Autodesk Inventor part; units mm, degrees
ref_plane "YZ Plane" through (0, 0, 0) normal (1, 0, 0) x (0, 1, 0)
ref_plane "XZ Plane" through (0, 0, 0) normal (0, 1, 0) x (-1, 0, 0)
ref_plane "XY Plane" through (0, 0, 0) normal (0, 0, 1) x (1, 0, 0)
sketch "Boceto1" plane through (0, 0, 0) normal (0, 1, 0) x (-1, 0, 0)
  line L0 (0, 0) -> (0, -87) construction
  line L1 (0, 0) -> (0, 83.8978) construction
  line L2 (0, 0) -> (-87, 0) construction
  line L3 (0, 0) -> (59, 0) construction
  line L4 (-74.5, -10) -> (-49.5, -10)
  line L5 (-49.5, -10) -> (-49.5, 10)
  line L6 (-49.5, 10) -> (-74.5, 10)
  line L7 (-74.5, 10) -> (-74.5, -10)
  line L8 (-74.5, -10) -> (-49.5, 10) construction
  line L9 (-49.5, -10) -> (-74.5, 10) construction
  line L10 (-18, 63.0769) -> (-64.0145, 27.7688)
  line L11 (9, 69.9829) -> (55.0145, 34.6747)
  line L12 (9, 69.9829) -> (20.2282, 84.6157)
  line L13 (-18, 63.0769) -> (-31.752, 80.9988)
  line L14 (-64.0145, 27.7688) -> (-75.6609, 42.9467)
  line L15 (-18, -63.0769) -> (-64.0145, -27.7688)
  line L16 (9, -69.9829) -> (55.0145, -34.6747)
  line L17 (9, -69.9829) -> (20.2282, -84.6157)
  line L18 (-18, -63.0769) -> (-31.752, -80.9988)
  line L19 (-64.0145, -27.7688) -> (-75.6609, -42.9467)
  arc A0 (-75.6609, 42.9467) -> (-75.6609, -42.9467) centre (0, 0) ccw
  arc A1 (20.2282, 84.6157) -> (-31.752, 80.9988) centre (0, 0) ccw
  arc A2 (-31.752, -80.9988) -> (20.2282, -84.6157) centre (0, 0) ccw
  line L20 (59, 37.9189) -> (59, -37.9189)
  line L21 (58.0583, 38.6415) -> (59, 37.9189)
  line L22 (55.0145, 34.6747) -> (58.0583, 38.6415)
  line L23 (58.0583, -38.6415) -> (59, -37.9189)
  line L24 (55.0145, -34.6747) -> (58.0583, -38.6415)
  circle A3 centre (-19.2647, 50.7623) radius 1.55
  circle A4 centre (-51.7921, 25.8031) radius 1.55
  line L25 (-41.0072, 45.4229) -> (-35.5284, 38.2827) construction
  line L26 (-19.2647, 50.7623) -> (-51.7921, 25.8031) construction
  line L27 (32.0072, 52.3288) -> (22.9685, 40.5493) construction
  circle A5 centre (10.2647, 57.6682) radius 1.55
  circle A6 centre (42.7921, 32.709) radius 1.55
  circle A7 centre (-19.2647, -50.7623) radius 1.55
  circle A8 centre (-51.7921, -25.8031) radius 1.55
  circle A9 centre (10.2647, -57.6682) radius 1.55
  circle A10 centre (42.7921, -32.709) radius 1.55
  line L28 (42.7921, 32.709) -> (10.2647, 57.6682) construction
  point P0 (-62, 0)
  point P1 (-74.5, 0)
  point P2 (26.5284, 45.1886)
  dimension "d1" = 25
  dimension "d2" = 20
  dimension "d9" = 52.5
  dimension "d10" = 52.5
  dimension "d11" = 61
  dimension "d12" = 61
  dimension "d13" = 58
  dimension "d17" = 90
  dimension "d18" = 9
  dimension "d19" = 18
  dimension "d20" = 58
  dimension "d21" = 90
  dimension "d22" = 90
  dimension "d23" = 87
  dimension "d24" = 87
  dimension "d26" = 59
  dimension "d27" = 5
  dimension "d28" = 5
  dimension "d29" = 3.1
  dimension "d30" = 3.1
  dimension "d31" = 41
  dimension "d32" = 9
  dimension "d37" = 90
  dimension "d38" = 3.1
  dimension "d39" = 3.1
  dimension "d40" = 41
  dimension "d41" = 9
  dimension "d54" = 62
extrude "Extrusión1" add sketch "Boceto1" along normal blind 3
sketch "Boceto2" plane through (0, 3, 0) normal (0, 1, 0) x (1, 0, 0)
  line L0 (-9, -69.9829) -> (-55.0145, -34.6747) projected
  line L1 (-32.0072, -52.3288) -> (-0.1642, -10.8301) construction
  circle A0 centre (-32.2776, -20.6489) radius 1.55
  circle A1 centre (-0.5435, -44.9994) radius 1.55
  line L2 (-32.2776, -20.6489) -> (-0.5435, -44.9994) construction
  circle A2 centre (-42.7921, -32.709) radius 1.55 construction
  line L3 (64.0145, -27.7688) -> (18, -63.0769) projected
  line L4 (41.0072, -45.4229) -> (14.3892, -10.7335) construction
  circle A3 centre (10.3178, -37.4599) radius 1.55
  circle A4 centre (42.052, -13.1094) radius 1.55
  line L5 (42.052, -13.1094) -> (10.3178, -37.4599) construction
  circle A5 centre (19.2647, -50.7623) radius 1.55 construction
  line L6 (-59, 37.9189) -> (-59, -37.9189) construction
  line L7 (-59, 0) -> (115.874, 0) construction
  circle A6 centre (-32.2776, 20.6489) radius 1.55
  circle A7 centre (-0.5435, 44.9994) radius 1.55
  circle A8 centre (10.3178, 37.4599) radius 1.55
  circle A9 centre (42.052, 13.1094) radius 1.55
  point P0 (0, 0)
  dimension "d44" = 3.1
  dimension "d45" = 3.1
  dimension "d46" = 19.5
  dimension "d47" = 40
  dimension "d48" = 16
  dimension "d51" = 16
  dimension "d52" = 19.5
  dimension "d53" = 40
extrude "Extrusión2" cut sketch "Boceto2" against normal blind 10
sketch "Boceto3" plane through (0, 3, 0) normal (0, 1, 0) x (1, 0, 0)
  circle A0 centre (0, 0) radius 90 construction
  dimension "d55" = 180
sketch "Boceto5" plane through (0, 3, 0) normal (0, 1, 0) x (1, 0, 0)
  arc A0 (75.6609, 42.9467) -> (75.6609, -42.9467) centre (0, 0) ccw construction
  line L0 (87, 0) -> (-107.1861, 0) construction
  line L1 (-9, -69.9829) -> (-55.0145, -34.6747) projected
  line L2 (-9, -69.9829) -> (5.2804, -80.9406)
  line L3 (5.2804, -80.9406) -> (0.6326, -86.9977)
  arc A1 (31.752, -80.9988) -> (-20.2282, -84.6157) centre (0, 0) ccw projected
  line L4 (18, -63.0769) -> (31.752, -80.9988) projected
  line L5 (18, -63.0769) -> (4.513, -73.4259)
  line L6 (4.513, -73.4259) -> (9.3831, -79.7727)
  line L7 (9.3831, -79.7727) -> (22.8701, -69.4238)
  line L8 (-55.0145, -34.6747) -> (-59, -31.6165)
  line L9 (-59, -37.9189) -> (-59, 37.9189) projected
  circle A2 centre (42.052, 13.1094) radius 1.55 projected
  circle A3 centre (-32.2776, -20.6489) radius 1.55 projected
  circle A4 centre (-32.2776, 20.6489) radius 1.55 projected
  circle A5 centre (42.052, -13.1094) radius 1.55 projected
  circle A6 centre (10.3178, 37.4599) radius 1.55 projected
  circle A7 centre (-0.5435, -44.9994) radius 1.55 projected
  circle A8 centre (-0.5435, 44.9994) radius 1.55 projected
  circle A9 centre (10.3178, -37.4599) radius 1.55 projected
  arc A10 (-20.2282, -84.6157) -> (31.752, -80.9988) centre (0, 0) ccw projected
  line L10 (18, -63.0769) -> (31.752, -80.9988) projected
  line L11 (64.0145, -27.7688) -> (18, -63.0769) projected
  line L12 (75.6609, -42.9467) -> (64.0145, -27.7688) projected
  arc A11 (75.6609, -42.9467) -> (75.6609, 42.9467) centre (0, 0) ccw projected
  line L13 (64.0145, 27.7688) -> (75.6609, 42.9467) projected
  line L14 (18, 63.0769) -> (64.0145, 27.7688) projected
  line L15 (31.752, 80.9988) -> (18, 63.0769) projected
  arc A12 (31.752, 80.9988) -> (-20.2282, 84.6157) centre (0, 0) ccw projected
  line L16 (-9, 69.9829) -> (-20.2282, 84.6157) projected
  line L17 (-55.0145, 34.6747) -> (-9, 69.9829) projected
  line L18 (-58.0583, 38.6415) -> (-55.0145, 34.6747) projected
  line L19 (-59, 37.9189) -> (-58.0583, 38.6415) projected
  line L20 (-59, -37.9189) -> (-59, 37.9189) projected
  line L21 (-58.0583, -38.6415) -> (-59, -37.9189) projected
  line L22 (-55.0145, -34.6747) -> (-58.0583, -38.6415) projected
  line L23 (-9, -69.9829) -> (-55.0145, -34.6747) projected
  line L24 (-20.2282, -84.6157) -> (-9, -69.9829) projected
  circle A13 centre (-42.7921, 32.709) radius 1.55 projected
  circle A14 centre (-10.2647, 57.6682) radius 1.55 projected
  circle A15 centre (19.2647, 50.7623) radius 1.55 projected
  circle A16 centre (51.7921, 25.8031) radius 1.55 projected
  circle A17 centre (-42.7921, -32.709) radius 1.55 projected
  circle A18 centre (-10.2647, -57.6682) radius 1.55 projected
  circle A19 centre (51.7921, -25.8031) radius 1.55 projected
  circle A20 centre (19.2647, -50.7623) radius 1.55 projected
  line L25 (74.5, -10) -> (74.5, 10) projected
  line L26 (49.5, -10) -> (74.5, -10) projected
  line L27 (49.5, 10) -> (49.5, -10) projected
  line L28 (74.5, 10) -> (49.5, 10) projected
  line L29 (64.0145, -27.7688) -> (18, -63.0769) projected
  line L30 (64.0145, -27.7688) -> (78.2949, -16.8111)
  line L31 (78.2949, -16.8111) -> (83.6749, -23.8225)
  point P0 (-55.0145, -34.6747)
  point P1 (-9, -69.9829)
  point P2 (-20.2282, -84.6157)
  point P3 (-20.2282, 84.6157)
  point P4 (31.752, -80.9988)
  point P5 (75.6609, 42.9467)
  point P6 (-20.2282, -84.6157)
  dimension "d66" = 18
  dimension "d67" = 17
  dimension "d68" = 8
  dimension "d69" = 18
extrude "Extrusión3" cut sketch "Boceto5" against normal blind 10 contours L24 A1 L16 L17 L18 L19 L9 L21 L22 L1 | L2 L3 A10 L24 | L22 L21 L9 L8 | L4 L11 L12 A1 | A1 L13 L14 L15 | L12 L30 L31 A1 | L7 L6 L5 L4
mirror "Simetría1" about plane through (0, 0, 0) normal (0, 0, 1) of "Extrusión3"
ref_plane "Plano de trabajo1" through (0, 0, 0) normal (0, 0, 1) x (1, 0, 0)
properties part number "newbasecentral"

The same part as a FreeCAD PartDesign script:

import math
import FreeCAD as App
import Part
import Sketcher
Q = App.Units.Quantity

doc = App.newDocument("Part")
body = doc.addObject("PartDesign::Body", "Body")

# Sketch on XZ plane
sketch1 = body.newObject("Sketcher::SketchObject", "Sketch")
sketch1.AttachmentSupport = (doc.getObject("XZ_Plane"), [""])
sketch1.MapMode = "FlatFace"
sketch1.addGeometry([
    Part.LineSegment(App.Vector(31.752, 80.9988, 0), App.Vector(18, 63.0769, 0)),  # 0
    Part.LineSegment(App.Vector(18, 63.0769, 0), App.Vector(64.0145, 27.7688, 0)),  # 1
    Part.LineSegment(App.Vector(64.0145, 27.7688, 0), App.Vector(75.6609, 42.9467, 0)),  # 2
    Part.ArcOfCircle(Part.Circle(App.Vector(0, 0, 0), App.Vector(0, 0, 1), 86.999947), math.radians(-29.580145), math.radians(29.580145)),  # 3
    Part.LineSegment(App.Vector(75.6609, -42.9467, 0), App.Vector(64.0145, -27.7688, 0)),  # 4
    Part.LineSegment(App.Vector(64.0145, -27.7688, 0), App.Vector(18, -63.0769, 0)),  # 5
    Part.LineSegment(App.Vector(18, -63.0769, 0), App.Vector(31.752, -80.9988, 0)),  # 6
    Part.ArcOfCircle(Part.Circle(App.Vector(0, 0, 0), App.Vector(0, 0, 1), 86.999981), math.radians(-103.444779), math.radians(-68.594532)),  # 7
    Part.LineSegment(App.Vector(-20.2282, -84.6157, 0), App.Vector(-9, -69.9829, 0)),  # 8
    Part.LineSegment(App.Vector(-9, -69.9829, 0), App.Vector(-55.0145, -34.6747, 0)),  # 9
    Part.LineSegment(App.Vector(-55.0145, -34.6747, 0), App.Vector(-58.0583, -38.6415, 0)),  # 10
    Part.LineSegment(App.Vector(-58.0583, -38.6415, 0), App.Vector(-59, -37.9189, 0)),  # 11
    Part.LineSegment(App.Vector(-59, -37.9189, 0), App.Vector(-59, 37.9189, 0)),  # 12
    Part.LineSegment(App.Vector(-59, 37.9189, 0), App.Vector(-58.0583, 38.6415, 0)),  # 13
    Part.LineSegment(App.Vector(-58.0583, 38.6415, 0), App.Vector(-55.0145, 34.6747, 0)),  # 14
    Part.LineSegment(App.Vector(-55.0145, 34.6747, 0), App.Vector(-9, 69.9829, 0)),  # 15
    Part.LineSegment(App.Vector(-9, 69.9829, 0), App.Vector(-20.2282, 84.6157, 0)),  # 16
    Part.ArcOfCircle(Part.Circle(App.Vector(0, 0, 0), App.Vector(0, 0, 1), 86.999947), math.radians(68.594532), math.radians(103.444779)),  # 17
    Part.Circle(App.Vector(19.2647, -50.7623, 0), App.Vector(0, 0, 1), 1.55),  # 18
    Part.Circle(App.Vector(51.7921, -25.8031, 0), App.Vector(0, 0, 1), 1.55),  # 19
    Part.LineSegment(App.Vector(49.5, -10, 0), App.Vector(74.5, -10, 0)),  # 20
    Part.LineSegment(App.Vector(74.5, -10, 0), App.Vector(74.5, 10, 0)),  # 21
    Part.LineSegment(App.Vector(74.5, 10, 0), App.Vector(49.5, 10, 0)),  # 22
    Part.LineSegment(App.Vector(49.5, 10, 0), App.Vector(49.5, -10, 0)),  # 23
    Part.Circle(App.Vector(-10.2647, -57.6682, 0), App.Vector(0, 0, 1), 1.55),  # 24
    Part.Circle(App.Vector(-42.7921, -32.709, 0), App.Vector(0, 0, 1), 1.55),  # 25
    Part.Circle(App.Vector(51.7921, 25.8031, 0), App.Vector(0, 0, 1), 1.55),  # 26
    Part.Circle(App.Vector(19.2647, 50.7623, 0), App.Vector(0, 0, 1), 1.55),  # 27
    Part.Circle(App.Vector(-42.7921, 32.709, 0), App.Vector(0, 0, 1), 1.55),  # 28
    Part.Circle(App.Vector(-10.2647, 57.6682, 0), App.Vector(0, 0, 1), 1.55),  # 29
], False)
sketch1.addConstraint([
    Sketcher.Constraint("Coincident", 0, 2, 1, 1),
    Sketcher.Constraint("Coincident", 1, 2, 2, 1),
    Sketcher.Constraint("Coincident", 2, 2, 3, 2),
    Sketcher.Constraint("Coincident", 3, 1, 4, 1),
    Sketcher.Constraint("Coincident", 4, 2, 5, 1),
    Sketcher.Constraint("Coincident", 5, 2, 6, 1),
    Sketcher.Constraint("Coincident", 6, 2, 7, 2),
    Sketcher.Constraint("Coincident", 7, 1, 8, 1),
    Sketcher.Constraint("Coincident", 8, 2, 9, 1),
    Sketcher.Constraint("Coincident", 9, 2, 10, 1),
    Sketcher.Constraint("Coincident", 10, 2, 11, 1),
    Sketcher.Constraint("Coincident", 11, 2, 12, 1),
    Sketcher.Constraint("Coincident", 12, 2, 13, 1),
    Sketcher.Constraint("Coincident", 13, 2, 14, 1),
    Sketcher.Constraint("Coincident", 14, 2, 15, 1),
    Sketcher.Constraint("Coincident", 15, 2, 16, 1),
    Sketcher.Constraint("Coincident", 16, 2, 17, 2),
    Sketcher.Constraint("Coincident", 17, 1, 0, 1),
    Sketcher.Constraint("Coincident", 20, 2, 21, 1),
    Sketcher.Constraint("Coincident", 21, 2, 22, 1),
    Sketcher.Constraint("Coincident", 22, 2, 23, 1),
    Sketcher.Constraint("Coincident", 23, 2, 20, 1),
    Sketcher.Constraint("Vertical", 12),
    Sketcher.Constraint("Horizontal", 20),
    Sketcher.Constraint("Vertical", 21),
    Sketcher.Constraint("Horizontal", 22),
    Sketcher.Constraint("Vertical", 23),
    Sketcher.Constraint("Coincident", 3, 3, -1, 1),
    Sketcher.Constraint("Coincident", 7, 3, -1, 1),
    Sketcher.Constraint("Coincident", 17, 3, -1, 1),
    Sketcher.Constraint("Equal", 3, 7),
    Sketcher.Constraint("Equal", 7, 17),
    Sketcher.Constraint("Equal", 18, 19),
    Sketcher.Constraint("Equal", 19, 24),
    Sketcher.Constraint("Equal", 24, 25),
    Sketcher.Constraint("Equal", 25, 26),
    Sketcher.Constraint("Equal", 26, 27),
    Sketcher.Constraint("Equal", 27, 28),
    Sketcher.Constraint("Equal", 28, 29),
    Sketcher.Constraint("Symmetric", 19, 3, 26, 3, -1),
    Sketcher.Constraint("Symmetric", 18, 3, 27, 3, -1),
    Sketcher.Constraint("Symmetric", 25, 3, 28, 3, -1),
    Sketcher.Constraint("Symmetric", 24, 3, 29, 3, -1),
    Sketcher.Constraint("Symmetric", 1, 2, 4, 2, -1),
    Sketcher.Constraint("Symmetric", 0, 2, 5, 2, -1),
    Sketcher.Constraint("Symmetric", 10, 2, 13, 2, -1),
    Sketcher.Constraint("Symmetric", 9, 2, 14, 2, -1),
    Sketcher.Constraint("Symmetric", 8, 2, 15, 2, -1),
    Sketcher.Constraint("Perpendicular", 0, 1),
    Sketcher.Constraint("Perpendicular", 1, 2),
    Sketcher.Constraint("Perpendicular", 4, 5),
    Sketcher.Constraint("Perpendicular", 5, 6),
    Sketcher.Constraint("Parallel", 2, 8),
    Sketcher.Constraint("Perpendicular", 8, 9),
    Sketcher.Constraint("Perpendicular", 9, 10),
    Sketcher.Constraint("Perpendicular", 10, 11),
    Sketcher.Constraint("Perpendicular", 6, 13),
    Sketcher.Constraint("Perpendicular", 15, 16),
    Sketcher.Constraint("Equal", 5, 9),
    Sketcher.Constraint("Radius", 3, 87.0),
    Sketcher.Constraint("Diameter", 18, 3.1),
    Sketcher.Constraint("DistanceX", 20, 1, 20, 2, 25.0),
    Sketcher.Constraint("DistanceY", 21, 1, 21, 2, 20.0),
    Sketcher.Constraint("Distance", 1, 58.0),
    Sketcher.Constraint("Distance", 10, 5.0),
    Sketcher.Constraint("DistanceX", -1, 1, 0, 2, 18.0),
    Sketcher.Constraint("DistanceX", 8, 2, -1, 1, 9.0),
    Sketcher.Constraint("DistanceX", 11, 2, -1, 1, 59.0),
    Sketcher.Constraint("Angle", 2, Q("52.5 deg")),
    Sketcher.Constraint("DistanceY", 20, 2, -1, 1, 10.0),
    Sketcher.Constraint("DistanceX", -1, 1, 20, 2, 74.5),
    Sketcher.Constraint("Distance", 0, 22.59),
    Sketcher.Constraint("DistanceX", 6, 2, 19, 3, 20.04),
    Sketcher.Constraint("DistanceY", 11, 2, 25, 3, 5.21),
    Sketcher.Constraint("DistanceY", 12, 1, 12, 2, 75.8378),
    Sketcher.Constraint("DistanceY", 19, 3, -1, 1, 25.803),
    Sketcher.Constraint("DistanceX", 25, 3, -1, 1, 42.792),
    Sketcher.Constraint("DistanceY", 24, 3, 18, 3, 6.906),
    Sketcher.Constraint("DistanceY", 24, 3, 19, 3, 31.865),
    Sketcher.Constraint("DistanceX", 7, 1, 18, 3, 39.493),
    Sketcher.Constraint("DistanceX", 24, 3, -1, 1, 10.2647),
])
pad1 = body.newObject("PartDesign::Pad", "Pad")
pad1.Profile = sketch1
pad1.Length = 3
pad1.Reversed = True

# Sketch on XZ plane
sketch2 = body.newObject("Sketcher::SketchObject", "Sketch001")
sketch2.AttachmentSupport = (doc.getObject("XZ_Plane"), [""])
sketch2.MapMode = "FlatFace"
sketch2.AttachmentOffset = App.Placement(App.Vector(0, 0, -3), App.Rotation())
sketch2.addGeometry([
    Part.Circle(App.Vector(-32.2776, 20.6489, 0), App.Vector(0, 0, 1), 1.55),  # 0
    Part.Circle(App.Vector(-0.5435, 44.9994, 0), App.Vector(0, 0, 1), 1.55),  # 1
    Part.Circle(App.Vector(10.3178, 37.4599, 0), App.Vector(0, 0, 1), 1.55),  # 2
    Part.Circle(App.Vector(42.052, 13.1094, 0), App.Vector(0, 0, 1), 1.55),  # 3
    Part.Circle(App.Vector(-32.2776, -20.6489, 0), App.Vector(0, 0, 1), 1.55),  # 4
    Part.Circle(App.Vector(-0.5435, -44.9994, 0), App.Vector(0, 0, 1), 1.55),  # 5
    Part.Circle(App.Vector(10.3178, -37.4599, 0), App.Vector(0, 0, 1), 1.55),  # 6
    Part.Circle(App.Vector(42.052, -13.1094, 0), App.Vector(0, 0, 1), 1.55),  # 7
], False)
sketch2.addConstraint([
    Sketcher.Constraint("Equal", 0, 1),
    Sketcher.Constraint("Equal", 1, 2),
    Sketcher.Constraint("Equal", 2, 3),
    Sketcher.Constraint("Equal", 3, 4),
    Sketcher.Constraint("Equal", 4, 5),
    Sketcher.Constraint("Equal", 5, 6),
    Sketcher.Constraint("Equal", 6, 7),
    Sketcher.Constraint("Symmetric", 0, 3, 4, 3, -1),
    Sketcher.Constraint("Symmetric", 1, 3, 5, 3, -1),
    Sketcher.Constraint("Symmetric", 2, 3, 6, 3, -1),
    Sketcher.Constraint("Symmetric", 3, 3, 7, 3, -1),
    Sketcher.Constraint("Diameter", 0, 3.1),
    Sketcher.Constraint("DistanceY", -1, 1, 2, 3, 37.46),
    Sketcher.Constraint("DistanceY", 3, 3, 1, 3, 31.89),
    Sketcher.Constraint("DistanceY", -1, 1, 0, 3, 20.649),
    Sketcher.Constraint("DistanceX", -1, 1, 3, 3, 42.052),
    Sketcher.Constraint("DistanceX", 0, 3, 1, 3, 31.734),
    Sketcher.Constraint("DistanceX", 0, 3, -1, 1, 32.2776),
    Sketcher.Constraint("DistanceY", -1, 1, 1, 3, 44.9994),
    Sketcher.Constraint("DistanceX", -1, 1, 2, 3, 10.3178),
])
pocket1 = body.newObject("PartDesign::Pocket", "Pocket")
pocket1.Profile = sketch2
pocket1.Length = 10
pocket1.Reversed = True

# Sketch on XZ plane
sketch3 = body.newObject("Sketcher::SketchObject", "Sketch002")
sketch3.AttachmentSupport = (doc.getObject("XZ_Plane"), [""])
sketch3.MapMode = "FlatFace"
sketch3.AttachmentOffset = App.Placement(App.Vector(0, 0, -3), App.Rotation())
sketch3.addGeometry([
    Part.ArcOfCircle(Part.Circle(App.Vector(0, 0, 0), App.Vector(0, 0, 1), 86.999972), math.radians(103.444779), math.radians(256.555221)),  # 0
    Part.ArcOfCircle(Part.Circle(App.Vector(0, 0, 0), App.Vector(0, 0, 1), 86.999947), math.radians(89.583384), math.radians(103.444779)),  # 1
    Part.LineSegment(App.Vector(0.6326, 86.9977, 0), App.Vector(5.2804, 80.9406, 0)),  # 2
    Part.LineSegment(App.Vector(5.2804, 80.9406, 0), App.Vector(-9, 69.9829, 0)),  # 3
    Part.LineSegment(App.Vector(-9, 69.9829, 0), App.Vector(-55.0145, 34.6747, 0)),  # 4
    Part.LineSegment(App.Vector(-55.0145, 34.6747, 0), App.Vector(-59, 31.6165, 0)),  # 5
    Part.LineSegment(App.Vector(-59, 31.6165, 0), App.Vector(-59, -37.9189, 0)),  # 6
    Part.LineSegment(App.Vector(-59, -37.9189, 0), App.Vector(-58.0583, -38.6415, 0)),  # 7
    Part.LineSegment(App.Vector(-58.0583, -38.6415, 0), App.Vector(-55.0145, -34.6747, 0)),  # 8
    Part.LineSegment(App.Vector(-55.0145, -34.6747, 0), App.Vector(-9, -69.9829, 0)),  # 9
    Part.LineSegment(App.Vector(-9, -69.9829, 0), App.Vector(-20.2282, -84.6157, 0)),  # 10
    Part.LineSegment(App.Vector(22.870139, 69.42377, 0), App.Vector(31.752, 80.9988, 0)),  # 11
    Part.ArcOfCircle(Part.Circle(App.Vector(0, 0, 0), App.Vector(0, 0, 1), 86.999972), math.radians(15.891815), math.radians(68.594532)),  # 12
    Part.LineSegment(App.Vector(83.6749, 23.8225, 0), App.Vector(78.2949, 16.8111, 0)),  # 13
    Part.LineSegment(App.Vector(78.2949, 16.8111, 0), App.Vector(64.0145, 27.7688, 0)),  # 14
    Part.LineSegment(App.Vector(64.0145, 27.7688, 0), App.Vector(18, 63.0769, 0)),  # 15
    Part.LineSegment(App.Vector(18, 63.0769, 0), App.Vector(4.513, 73.4259, 0)),  # 16
    Part.LineSegment(App.Vector(4.513, 73.4259, 0), App.Vector(9.3831, 79.7727, 0)),  # 17
    Part.LineSegment(App.Vector(9.3831, 79.7727, 0), App.Vector(22.8701, 69.4238, 0)),  # 18
    Part.ArcOfCircle(Part.Circle(App.Vector(0, 0, 0), App.Vector(0, 0, 1), 86.999972), math.radians(-68.594532), math.radians(-29.580145)),  # 19
    Part.LineSegment(App.Vector(31.752, -80.9988, 0), App.Vector(18, -63.0769, 0)),  # 20
    Part.LineSegment(App.Vector(18, -63.0769, 0), App.Vector(64.0145, -27.7688, 0)),  # 21
    Part.LineSegment(App.Vector(64.0145, -27.7688, 0), App.Vector(75.6609, -42.9467, 0)),  # 22
], False)
sketch3.addConstraint([
    Sketcher.Constraint("Tangent", 0, 1, 1, 2),
    Sketcher.Constraint("Coincident", 1, 1, 2, 1),
    Sketcher.Constraint("Coincident", 2, 2, 3, 1),
    Sketcher.Constraint("Coincident", 3, 2, 4, 1),
    Sketcher.Constraint("Coincident", 4, 2, 5, 1),
    Sketcher.Constraint("Coincident", 5, 2, 6, 1),
    Sketcher.Constraint("Coincident", 6, 2, 7, 1),
    Sketcher.Constraint("Coincident", 7, 2, 8, 1),
    Sketcher.Constraint("Coincident", 8, 2, 9, 1),
    Sketcher.Constraint("Coincident", 9, 2, 10, 1),
    Sketcher.Constraint("Coincident", 10, 2, 0, 2),
    Sketcher.Constraint("Coincident", 11, 2, 12, 2),
    Sketcher.Constraint("Coincident", 12, 1, 13, 1),
    Sketcher.Constraint("Coincident", 13, 2, 14, 1),
    Sketcher.Constraint("Coincident", 14, 2, 15, 1),
    Sketcher.Constraint("Coincident", 15, 2, 16, 1),
    Sketcher.Constraint("Coincident", 16, 2, 17, 1),
    Sketcher.Constraint("Coincident", 17, 2, 18, 1),
    Sketcher.Constraint("Coincident", 18, 2, 11, 1),
    Sketcher.Constraint("Coincident", 19, 1, 20, 1),
    Sketcher.Constraint("Coincident", 20, 2, 21, 1),
    Sketcher.Constraint("Coincident", 21, 2, 22, 1),
    Sketcher.Constraint("Coincident", 22, 2, 19, 2),
    Sketcher.Constraint("Vertical", 6),
    Sketcher.Constraint("Coincident", 0, 3, -1, 1),
    Sketcher.Constraint("Coincident", 12, 3, -1, 1),
    Sketcher.Constraint("Coincident", 19, 3, -1, 1),
    Sketcher.Constraint("Equal", 0, 1),
    Sketcher.Constraint("Equal", 1, 12),
    Sketcher.Constraint("Equal", 12, 19),
    Sketcher.Constraint("Symmetric", 4, 2, 8, 2, -1),
    Sketcher.Constraint("Symmetric", 3, 2, 9, 2, -1),
    Sketcher.Constraint("Symmetric", 15, 2, 20, 2, -1),
    Sketcher.Constraint("Symmetric", 14, 2, 21, 2, -1),
    Sketcher.Constraint("Perpendicular", 2, 3),
    Sketcher.Constraint("Parallel", 3, 4),
    Sketcher.Constraint("Parallel", 4, 5),
    Sketcher.Constraint("Perpendicular", 7, 8),
    Sketcher.Constraint("Perpendicular", 8, 9),
    Sketcher.Constraint("Perpendicular", 9, 10),
    Sketcher.Constraint("Parallel", 10, 11),
    Sketcher.Constraint("Parallel", 11, 13),
    Sketcher.Constraint("Perpendicular", 13, 14),
    Sketcher.Constraint("Parallel", 14, 15),
    Sketcher.Constraint("Parallel", 15, 16),
    Sketcher.Constraint("Perpendicular", 16, 17),
    Sketcher.Constraint("Perpendicular", 17, 18),
    Sketcher.Constraint("Perpendicular", 5, 20),
    Sketcher.Constraint("Perpendicular", 21, 22),
    Sketcher.Constraint("Vertical", 0, 1, 10, 2),
    Sketcher.Constraint("Vertical", 11, 2, 19, 1),
    Sketcher.Constraint("Equal", 3, 14),
    Sketcher.Constraint("Equal", 9, 15),
    Sketcher.Constraint("Distance", 3, 18.0),
    Sketcher.Constraint("Distance", 16, 17.0),
    Sketcher.Constraint("Distance", 17, 8.0),
    Sketcher.Constraint("DistanceX", -1, 1, 15, 2, 18.0),
    Sketcher.Constraint("Radius", 0, 87.0),
    Sketcher.Constraint("Distance", 4, 58.0),
    Sketcher.Constraint("Distance", 8, 5.0),
    Sketcher.Constraint("DistanceX", 3, 2, -1, 1, 9.0),
    Sketcher.Constraint("DistanceX", 5, 2, -1, 1, 59.0),
    Sketcher.Constraint("Angle", 2, Q("-52.4999 deg")),
    Sketcher.Constraint("Distance", 11, 14.59),
    Sketcher.Constraint("DistanceX", 7, 2, 10, 2, 37.83),
])
pocket2 = body.newObject("PartDesign::Pocket", "Pocket001")
pocket2.Profile = sketch3
pocket2.Length = 10
pocket2.Reversed = True
doc.recompute()

mirrored = body.newObject("PartDesign::Mirrored", "Mirrored")
mirrored.Originals = [pocket2]
mirrored.MirrorPlane = (doc.getObject("XY_Plane"), [""])
body.Tip = mirrored

doc.recompute()
